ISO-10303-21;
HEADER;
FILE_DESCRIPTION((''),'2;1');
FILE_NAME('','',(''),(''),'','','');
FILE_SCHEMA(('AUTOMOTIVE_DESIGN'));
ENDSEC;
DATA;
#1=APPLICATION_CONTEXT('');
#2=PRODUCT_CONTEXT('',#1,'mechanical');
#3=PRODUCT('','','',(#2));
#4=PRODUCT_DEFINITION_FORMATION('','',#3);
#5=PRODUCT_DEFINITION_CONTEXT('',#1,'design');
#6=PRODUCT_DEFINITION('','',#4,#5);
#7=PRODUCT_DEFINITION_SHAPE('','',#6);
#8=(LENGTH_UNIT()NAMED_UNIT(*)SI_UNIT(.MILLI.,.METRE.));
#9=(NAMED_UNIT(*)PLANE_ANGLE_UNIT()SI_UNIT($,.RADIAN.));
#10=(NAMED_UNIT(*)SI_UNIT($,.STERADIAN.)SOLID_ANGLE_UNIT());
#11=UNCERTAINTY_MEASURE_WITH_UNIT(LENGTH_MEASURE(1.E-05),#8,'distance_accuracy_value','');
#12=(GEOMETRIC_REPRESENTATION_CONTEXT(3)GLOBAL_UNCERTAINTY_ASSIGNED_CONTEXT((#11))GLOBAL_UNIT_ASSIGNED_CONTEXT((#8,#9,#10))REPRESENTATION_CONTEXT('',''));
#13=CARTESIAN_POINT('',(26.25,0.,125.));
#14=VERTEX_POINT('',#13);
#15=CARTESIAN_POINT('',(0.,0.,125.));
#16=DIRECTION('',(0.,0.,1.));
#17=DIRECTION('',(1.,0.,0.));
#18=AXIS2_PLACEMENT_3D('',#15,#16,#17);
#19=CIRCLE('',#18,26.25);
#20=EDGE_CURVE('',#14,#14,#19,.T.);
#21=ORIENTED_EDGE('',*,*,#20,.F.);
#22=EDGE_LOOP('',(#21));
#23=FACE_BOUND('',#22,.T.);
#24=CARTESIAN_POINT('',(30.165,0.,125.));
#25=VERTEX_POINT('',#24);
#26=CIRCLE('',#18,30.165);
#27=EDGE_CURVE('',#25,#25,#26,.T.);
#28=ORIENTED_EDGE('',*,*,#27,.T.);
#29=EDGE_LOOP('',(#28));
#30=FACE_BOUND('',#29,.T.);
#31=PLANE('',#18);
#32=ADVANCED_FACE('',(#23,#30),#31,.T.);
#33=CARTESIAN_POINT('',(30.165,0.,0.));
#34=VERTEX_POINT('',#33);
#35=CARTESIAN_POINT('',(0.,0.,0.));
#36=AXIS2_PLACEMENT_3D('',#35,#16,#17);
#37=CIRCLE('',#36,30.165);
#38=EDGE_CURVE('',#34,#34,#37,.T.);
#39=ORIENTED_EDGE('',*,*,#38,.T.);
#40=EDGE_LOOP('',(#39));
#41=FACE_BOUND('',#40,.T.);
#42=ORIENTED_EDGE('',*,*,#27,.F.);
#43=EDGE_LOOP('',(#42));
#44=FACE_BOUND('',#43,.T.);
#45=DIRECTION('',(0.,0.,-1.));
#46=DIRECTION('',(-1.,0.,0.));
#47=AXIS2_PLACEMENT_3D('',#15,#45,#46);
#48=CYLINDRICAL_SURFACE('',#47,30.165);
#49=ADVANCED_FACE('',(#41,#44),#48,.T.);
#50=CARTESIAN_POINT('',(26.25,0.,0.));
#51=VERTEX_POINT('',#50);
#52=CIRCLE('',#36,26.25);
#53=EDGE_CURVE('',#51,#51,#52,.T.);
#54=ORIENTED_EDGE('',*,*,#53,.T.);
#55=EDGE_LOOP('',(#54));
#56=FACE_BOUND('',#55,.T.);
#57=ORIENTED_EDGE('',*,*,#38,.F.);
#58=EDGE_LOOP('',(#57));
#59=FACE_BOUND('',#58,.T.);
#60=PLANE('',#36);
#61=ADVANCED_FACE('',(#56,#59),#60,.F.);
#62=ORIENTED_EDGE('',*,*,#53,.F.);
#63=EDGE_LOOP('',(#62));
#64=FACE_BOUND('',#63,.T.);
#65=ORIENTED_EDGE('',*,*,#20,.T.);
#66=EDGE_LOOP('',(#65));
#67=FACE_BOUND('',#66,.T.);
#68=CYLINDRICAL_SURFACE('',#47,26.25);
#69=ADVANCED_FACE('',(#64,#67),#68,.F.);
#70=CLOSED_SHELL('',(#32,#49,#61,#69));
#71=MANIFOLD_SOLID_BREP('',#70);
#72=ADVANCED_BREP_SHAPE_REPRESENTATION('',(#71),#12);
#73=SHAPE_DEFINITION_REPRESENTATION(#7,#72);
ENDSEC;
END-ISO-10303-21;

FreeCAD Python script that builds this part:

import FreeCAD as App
import Part
import Sketcher
from FreeCAD import Vector

doc = App.newDocument("Part")
body = doc.addObject("PartDesign::Body", "Body")

# Sketch on XY plane
sketch1 = doc.addObject("Sketcher::SketchObject", "Sketch")
body.addObject(sketch1)
sketch1.AttachmentSupport = (doc.XY_Plane, [""])
sketch1.MapMode = "FlatFace"
sketch1.addGeometry([
    Part.Circle(Vector(0, 0, 0), Vector(0, 0, 1), 30),
    Part.Circle(Vector(0, 0, 0), Vector(0, 0, 1), 26),
], False)
sketch1.addConstraint([
    Sketcher.Constraint("Coincident", 0, 3, -1, 1),
    Sketcher.Constraint("Coincident", 1, 3, -1, 1),
    Sketcher.Constraint("Diameter", 1, 52.5),
    Sketcher.Constraint("Diameter", 0, 60.33),
])
pad1 = doc.addObject("PartDesign::Pad", "Pad")
body.addObject(pad1)
pad1.Profile = sketch1
pad1.Length = 125

doc.recompute()
